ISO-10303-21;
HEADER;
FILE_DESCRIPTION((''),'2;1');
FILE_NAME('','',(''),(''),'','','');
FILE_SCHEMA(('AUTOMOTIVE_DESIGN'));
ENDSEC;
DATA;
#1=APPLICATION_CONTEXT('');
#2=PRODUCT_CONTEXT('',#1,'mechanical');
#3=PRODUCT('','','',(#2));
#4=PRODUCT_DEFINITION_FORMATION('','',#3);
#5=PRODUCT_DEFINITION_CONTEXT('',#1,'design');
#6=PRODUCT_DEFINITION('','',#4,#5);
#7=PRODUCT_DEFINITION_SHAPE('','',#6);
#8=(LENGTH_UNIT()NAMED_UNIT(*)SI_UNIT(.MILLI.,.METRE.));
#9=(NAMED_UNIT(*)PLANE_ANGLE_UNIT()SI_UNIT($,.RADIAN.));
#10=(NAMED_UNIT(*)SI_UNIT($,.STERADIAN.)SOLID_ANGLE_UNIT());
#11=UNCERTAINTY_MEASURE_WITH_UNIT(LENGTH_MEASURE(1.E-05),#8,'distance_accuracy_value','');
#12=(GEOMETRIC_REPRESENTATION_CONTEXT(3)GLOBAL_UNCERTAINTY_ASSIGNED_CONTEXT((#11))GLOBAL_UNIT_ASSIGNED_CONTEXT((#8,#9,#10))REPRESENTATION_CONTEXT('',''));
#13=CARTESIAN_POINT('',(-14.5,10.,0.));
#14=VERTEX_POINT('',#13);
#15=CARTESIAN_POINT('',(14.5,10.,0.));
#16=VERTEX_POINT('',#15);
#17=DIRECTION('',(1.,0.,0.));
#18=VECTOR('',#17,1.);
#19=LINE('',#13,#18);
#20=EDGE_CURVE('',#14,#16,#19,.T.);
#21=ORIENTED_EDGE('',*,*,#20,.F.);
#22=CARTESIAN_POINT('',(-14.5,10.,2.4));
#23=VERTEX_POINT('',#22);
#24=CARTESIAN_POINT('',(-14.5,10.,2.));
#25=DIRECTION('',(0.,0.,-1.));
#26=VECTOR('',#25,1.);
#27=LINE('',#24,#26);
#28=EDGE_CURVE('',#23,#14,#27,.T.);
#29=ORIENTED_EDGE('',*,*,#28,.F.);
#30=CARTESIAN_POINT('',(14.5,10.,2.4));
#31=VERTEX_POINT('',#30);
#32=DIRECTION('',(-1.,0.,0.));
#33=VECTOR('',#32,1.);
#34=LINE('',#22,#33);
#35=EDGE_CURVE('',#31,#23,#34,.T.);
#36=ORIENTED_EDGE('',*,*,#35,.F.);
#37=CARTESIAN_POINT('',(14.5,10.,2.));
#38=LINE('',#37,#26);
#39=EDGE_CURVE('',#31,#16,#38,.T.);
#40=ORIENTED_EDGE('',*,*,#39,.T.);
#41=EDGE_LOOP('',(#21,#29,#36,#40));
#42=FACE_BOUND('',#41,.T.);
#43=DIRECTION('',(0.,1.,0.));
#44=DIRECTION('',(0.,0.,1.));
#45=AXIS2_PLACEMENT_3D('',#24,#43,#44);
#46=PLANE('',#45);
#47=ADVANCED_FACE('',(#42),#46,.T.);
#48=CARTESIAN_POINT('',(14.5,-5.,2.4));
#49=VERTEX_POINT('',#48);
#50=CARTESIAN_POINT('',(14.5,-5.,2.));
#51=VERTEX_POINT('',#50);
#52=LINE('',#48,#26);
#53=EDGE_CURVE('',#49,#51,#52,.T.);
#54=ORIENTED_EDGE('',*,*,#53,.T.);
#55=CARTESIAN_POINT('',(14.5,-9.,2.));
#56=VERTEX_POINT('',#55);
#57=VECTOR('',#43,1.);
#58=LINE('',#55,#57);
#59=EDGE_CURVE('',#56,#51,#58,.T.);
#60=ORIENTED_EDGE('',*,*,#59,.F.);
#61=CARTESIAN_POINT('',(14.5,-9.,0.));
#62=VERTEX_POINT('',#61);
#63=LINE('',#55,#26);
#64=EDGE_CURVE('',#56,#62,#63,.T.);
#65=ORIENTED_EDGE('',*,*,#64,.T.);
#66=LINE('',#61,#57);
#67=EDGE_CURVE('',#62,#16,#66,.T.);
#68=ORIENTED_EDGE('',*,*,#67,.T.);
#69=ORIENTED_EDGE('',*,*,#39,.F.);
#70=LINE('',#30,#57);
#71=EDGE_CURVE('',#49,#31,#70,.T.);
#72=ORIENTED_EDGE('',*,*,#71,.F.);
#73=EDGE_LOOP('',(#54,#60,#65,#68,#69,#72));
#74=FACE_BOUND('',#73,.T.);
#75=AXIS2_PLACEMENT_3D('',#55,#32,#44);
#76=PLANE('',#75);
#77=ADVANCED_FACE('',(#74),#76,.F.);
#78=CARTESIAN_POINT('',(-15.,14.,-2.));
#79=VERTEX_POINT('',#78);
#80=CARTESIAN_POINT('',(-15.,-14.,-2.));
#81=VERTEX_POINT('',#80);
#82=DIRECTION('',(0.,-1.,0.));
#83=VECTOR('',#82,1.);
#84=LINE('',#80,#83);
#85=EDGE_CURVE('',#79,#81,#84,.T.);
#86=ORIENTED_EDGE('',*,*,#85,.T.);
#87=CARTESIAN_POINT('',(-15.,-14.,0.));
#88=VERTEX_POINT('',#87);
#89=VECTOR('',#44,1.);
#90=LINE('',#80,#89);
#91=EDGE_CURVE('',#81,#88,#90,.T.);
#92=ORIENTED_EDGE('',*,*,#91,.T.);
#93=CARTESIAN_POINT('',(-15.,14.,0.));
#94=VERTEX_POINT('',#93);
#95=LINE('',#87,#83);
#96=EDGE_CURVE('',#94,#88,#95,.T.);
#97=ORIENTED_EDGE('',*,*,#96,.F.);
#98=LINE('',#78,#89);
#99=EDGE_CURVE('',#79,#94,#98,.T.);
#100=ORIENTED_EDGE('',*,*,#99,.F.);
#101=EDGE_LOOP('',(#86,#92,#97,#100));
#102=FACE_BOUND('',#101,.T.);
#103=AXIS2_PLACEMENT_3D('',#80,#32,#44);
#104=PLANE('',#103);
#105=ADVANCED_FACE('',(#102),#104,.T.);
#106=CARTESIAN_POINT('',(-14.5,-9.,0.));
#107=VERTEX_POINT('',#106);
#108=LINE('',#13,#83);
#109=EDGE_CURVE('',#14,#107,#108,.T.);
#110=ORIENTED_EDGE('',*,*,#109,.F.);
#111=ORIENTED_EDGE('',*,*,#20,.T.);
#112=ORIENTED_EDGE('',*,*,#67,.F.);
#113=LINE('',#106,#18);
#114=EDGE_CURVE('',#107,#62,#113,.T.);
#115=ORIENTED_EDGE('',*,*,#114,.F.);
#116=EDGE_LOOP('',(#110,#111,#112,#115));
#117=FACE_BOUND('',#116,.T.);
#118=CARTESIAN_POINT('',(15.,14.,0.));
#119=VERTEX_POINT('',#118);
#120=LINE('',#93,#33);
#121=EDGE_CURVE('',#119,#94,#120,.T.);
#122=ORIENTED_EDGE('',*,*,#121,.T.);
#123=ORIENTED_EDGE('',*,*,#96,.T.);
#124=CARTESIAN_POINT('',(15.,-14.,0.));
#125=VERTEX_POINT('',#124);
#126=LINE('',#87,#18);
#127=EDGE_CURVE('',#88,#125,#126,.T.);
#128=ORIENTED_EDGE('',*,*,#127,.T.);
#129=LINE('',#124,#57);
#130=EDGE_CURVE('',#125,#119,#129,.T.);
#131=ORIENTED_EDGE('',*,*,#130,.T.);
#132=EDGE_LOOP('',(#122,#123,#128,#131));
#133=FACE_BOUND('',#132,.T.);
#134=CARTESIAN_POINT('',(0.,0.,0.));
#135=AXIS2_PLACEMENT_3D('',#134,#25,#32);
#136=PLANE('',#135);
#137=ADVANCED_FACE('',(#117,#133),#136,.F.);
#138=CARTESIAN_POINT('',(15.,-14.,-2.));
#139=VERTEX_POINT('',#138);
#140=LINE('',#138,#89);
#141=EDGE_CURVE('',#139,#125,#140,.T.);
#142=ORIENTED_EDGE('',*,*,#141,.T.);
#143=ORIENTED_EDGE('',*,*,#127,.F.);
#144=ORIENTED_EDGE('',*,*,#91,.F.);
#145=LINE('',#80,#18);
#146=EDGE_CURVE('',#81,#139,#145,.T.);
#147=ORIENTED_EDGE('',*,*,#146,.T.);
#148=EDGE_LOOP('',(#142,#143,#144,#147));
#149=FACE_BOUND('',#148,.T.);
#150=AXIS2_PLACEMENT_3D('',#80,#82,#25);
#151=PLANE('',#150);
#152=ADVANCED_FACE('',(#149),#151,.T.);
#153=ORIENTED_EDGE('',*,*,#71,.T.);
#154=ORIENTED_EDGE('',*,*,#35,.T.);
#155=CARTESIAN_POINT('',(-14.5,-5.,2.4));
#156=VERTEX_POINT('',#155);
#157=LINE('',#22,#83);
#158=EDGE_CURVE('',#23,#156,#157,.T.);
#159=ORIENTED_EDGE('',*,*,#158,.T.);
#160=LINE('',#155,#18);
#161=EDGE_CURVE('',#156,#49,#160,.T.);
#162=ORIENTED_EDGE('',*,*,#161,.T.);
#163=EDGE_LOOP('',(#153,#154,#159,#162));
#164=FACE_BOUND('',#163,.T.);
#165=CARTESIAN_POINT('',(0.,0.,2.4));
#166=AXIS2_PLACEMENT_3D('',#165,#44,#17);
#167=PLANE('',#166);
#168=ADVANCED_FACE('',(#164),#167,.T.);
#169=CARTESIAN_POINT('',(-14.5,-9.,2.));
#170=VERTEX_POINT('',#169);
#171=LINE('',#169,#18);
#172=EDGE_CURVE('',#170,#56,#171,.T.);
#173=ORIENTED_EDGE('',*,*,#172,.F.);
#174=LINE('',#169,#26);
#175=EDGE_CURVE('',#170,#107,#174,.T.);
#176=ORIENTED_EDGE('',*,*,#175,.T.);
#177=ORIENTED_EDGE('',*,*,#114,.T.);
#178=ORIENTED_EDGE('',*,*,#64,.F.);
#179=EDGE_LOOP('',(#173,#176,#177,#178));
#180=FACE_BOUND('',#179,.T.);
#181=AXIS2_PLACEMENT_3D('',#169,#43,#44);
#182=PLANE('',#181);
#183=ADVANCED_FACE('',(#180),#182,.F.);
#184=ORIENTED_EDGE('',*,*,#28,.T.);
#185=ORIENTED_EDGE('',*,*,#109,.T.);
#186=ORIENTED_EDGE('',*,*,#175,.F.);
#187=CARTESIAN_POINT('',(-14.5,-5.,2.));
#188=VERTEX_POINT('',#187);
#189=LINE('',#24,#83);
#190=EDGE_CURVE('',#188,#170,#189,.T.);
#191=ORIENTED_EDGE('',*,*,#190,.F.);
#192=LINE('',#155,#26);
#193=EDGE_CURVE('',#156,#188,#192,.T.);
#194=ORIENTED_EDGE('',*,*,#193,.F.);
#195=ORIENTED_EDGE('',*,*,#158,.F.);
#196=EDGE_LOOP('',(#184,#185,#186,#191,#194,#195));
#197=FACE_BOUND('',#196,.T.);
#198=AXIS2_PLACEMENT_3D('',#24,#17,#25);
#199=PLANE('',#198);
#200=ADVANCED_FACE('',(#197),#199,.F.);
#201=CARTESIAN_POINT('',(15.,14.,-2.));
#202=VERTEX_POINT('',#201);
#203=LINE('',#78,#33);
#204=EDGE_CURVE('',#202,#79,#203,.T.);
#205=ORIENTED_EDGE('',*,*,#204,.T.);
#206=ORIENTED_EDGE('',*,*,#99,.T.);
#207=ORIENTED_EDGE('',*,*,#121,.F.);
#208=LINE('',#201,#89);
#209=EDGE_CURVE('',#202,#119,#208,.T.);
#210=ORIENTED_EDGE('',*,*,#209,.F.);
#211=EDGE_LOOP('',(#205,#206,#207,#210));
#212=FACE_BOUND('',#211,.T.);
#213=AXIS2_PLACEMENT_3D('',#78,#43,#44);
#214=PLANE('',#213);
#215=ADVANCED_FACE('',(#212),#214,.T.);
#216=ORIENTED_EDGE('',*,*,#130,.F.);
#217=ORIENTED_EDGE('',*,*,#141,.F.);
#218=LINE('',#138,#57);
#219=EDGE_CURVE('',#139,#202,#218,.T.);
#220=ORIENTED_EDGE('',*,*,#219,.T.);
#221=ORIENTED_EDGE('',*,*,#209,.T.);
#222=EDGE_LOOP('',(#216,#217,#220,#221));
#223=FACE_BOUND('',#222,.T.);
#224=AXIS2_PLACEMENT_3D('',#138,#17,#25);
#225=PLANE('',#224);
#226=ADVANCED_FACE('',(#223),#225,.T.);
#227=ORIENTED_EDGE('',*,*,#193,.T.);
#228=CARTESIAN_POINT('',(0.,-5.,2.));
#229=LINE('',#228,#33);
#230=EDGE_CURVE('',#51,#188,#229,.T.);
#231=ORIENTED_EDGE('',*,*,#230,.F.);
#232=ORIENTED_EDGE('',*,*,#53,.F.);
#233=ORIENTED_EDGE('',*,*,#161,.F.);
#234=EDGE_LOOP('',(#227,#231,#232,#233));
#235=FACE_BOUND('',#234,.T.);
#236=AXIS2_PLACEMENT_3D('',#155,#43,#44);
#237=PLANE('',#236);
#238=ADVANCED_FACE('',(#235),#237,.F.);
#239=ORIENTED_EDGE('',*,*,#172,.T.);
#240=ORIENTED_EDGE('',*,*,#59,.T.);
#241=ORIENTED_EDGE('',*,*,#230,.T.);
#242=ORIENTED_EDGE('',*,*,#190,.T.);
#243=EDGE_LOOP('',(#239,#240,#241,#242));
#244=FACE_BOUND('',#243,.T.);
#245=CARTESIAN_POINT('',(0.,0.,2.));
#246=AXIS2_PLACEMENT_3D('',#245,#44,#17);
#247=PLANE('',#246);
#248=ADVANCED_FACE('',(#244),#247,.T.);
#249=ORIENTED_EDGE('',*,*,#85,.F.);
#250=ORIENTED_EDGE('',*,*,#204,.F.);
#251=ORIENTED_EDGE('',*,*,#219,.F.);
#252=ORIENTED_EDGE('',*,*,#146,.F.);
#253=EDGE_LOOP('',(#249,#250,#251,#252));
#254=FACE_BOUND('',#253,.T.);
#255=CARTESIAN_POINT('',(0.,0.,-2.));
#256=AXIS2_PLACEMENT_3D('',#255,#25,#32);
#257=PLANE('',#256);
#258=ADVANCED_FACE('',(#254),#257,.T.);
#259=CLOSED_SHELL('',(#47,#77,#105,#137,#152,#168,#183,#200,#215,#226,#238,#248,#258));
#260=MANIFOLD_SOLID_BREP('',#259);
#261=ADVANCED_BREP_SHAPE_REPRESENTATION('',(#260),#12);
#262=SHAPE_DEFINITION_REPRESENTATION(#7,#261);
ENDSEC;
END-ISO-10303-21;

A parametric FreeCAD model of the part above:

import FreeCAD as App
import Part
import Sketcher


def add_polygon(sketch, points):
    """Adds a closed chain of lines whose ends are joined by coincident constraints."""
    first, n = sketch.GeometryCount, len(points)
    for a, b in zip(points, points[1:] + points[:1]):
        sketch.addGeometry(Part.LineSegment(App.Vector(*a, 0), App.Vector(*b, 0)), False)
    for i in range(n):
        sketch.addConstraint(Sketcher.Constraint("Coincident", first + i, 2, first + (i + 1) % n, 1))

doc = App.newDocument("Part")
body = doc.addObject("PartDesign::Body", "Body")

# Sketch on XY plane
sketch1 = doc.addObject("Sketcher::SketchObject", "Sketch")
body.addObject(sketch1)
sketch1.AttachmentSupport = (doc.XY_Plane, [""])
sketch1.MapMode = "FlatFace"
add_polygon(sketch1, [(-15, 14), (-15, -14), (15, -14), (15, 14)])  # lines 0-3
sketch1.addConstraint([
    Sketcher.Constraint("Vertical", 0),
    Sketcher.Constraint("Horizontal", 1),
    Sketcher.Constraint("Vertical", 2),
    Sketcher.Constraint("Horizontal", 3),
    Sketcher.Constraint("Symmetric", 0, 2, 2, 2, -1, 1),
    Sketcher.Constraint("DistanceX", 1, 1, 1, 2, 30.0),
    Sketcher.Constraint("DistanceY", 0, 2, 0, 1, 28.0),
])
pad1 = doc.addObject("PartDesign::Pad", "Pad")
body.addObject(pad1)
pad1.Profile = sketch1
pad1.Length = 2
pad1.Reversed = True

# Sketch on XY plane
sketch2 = doc.addObject("Sketcher::SketchObject", "Sketch001")
body.addObject(sketch2)
sketch2.AttachmentSupport = (doc.XY_Plane, [""])
sketch2.MapMode = "FlatFace"
add_polygon(sketch2, [(-14, 10), (-14, -9), (14, -9), (14, 10)])  # lines 0-3
sketch2.addConstraint([
    Sketcher.Constraint("Vertical", 0),
    Sketcher.Constraint("Horizontal", 1),
    Sketcher.Constraint("Vertical", 2),
    Sketcher.Constraint("Horizontal", 3),
    Sketcher.Constraint("DistanceX", 1, 1, 1, 2, 29.0),
    Sketcher.Constraint("DistanceY", 0, 2, 0, 1, 19.0),
    Sketcher.Constraint("DistanceY", 0, 2, -1, 1, 9.0),
    Sketcher.Constraint("DistanceX", 0, 2, -1, 1, 14.5),
])
pad2 = doc.addObject("PartDesign::Pad", "Pad001")
body.addObject(pad2)
pad2.Profile = sketch2
pad2.Length = 2

# Sketch on XY plane
sketch3 = doc.addObject("Sketcher::SketchObject", "Sketch002")
body.addObject(sketch3)
sketch3.AttachmentSupport = (doc.XY_Plane, [""])
sketch3.MapMode = "FlatFace"
add_polygon(sketch3, [(-14, 10), (-14, -5), (14, -5), (14, 10)])  # lines 0-3
sketch3.addConstraint([
    Sketcher.Constraint("Vertical", 0),
    Sketcher.Constraint("Horizontal", 1),
    Sketcher.Constraint("Vertical", 2),
    Sketcher.Constraint("Horizontal", 3),
    Sketcher.Constraint("DistanceX", 1, 1, 1, 2, 29.0),
    Sketcher.Constraint("DistanceY", 0, 2, 0, 1, 15.0),
    Sketcher.Constraint("DistanceY", 0, 2, -1, 1, 5.0),
    Sketcher.Constraint("DistanceX", 0, 2, -1, 1, 14.5),
])
pad3 = doc.addObject("PartDesign::Pad", "Pad002")
body.addObject(pad3)
pad3.Profile = sketch3
pad3.Length = 2.4

doc.recompute()
